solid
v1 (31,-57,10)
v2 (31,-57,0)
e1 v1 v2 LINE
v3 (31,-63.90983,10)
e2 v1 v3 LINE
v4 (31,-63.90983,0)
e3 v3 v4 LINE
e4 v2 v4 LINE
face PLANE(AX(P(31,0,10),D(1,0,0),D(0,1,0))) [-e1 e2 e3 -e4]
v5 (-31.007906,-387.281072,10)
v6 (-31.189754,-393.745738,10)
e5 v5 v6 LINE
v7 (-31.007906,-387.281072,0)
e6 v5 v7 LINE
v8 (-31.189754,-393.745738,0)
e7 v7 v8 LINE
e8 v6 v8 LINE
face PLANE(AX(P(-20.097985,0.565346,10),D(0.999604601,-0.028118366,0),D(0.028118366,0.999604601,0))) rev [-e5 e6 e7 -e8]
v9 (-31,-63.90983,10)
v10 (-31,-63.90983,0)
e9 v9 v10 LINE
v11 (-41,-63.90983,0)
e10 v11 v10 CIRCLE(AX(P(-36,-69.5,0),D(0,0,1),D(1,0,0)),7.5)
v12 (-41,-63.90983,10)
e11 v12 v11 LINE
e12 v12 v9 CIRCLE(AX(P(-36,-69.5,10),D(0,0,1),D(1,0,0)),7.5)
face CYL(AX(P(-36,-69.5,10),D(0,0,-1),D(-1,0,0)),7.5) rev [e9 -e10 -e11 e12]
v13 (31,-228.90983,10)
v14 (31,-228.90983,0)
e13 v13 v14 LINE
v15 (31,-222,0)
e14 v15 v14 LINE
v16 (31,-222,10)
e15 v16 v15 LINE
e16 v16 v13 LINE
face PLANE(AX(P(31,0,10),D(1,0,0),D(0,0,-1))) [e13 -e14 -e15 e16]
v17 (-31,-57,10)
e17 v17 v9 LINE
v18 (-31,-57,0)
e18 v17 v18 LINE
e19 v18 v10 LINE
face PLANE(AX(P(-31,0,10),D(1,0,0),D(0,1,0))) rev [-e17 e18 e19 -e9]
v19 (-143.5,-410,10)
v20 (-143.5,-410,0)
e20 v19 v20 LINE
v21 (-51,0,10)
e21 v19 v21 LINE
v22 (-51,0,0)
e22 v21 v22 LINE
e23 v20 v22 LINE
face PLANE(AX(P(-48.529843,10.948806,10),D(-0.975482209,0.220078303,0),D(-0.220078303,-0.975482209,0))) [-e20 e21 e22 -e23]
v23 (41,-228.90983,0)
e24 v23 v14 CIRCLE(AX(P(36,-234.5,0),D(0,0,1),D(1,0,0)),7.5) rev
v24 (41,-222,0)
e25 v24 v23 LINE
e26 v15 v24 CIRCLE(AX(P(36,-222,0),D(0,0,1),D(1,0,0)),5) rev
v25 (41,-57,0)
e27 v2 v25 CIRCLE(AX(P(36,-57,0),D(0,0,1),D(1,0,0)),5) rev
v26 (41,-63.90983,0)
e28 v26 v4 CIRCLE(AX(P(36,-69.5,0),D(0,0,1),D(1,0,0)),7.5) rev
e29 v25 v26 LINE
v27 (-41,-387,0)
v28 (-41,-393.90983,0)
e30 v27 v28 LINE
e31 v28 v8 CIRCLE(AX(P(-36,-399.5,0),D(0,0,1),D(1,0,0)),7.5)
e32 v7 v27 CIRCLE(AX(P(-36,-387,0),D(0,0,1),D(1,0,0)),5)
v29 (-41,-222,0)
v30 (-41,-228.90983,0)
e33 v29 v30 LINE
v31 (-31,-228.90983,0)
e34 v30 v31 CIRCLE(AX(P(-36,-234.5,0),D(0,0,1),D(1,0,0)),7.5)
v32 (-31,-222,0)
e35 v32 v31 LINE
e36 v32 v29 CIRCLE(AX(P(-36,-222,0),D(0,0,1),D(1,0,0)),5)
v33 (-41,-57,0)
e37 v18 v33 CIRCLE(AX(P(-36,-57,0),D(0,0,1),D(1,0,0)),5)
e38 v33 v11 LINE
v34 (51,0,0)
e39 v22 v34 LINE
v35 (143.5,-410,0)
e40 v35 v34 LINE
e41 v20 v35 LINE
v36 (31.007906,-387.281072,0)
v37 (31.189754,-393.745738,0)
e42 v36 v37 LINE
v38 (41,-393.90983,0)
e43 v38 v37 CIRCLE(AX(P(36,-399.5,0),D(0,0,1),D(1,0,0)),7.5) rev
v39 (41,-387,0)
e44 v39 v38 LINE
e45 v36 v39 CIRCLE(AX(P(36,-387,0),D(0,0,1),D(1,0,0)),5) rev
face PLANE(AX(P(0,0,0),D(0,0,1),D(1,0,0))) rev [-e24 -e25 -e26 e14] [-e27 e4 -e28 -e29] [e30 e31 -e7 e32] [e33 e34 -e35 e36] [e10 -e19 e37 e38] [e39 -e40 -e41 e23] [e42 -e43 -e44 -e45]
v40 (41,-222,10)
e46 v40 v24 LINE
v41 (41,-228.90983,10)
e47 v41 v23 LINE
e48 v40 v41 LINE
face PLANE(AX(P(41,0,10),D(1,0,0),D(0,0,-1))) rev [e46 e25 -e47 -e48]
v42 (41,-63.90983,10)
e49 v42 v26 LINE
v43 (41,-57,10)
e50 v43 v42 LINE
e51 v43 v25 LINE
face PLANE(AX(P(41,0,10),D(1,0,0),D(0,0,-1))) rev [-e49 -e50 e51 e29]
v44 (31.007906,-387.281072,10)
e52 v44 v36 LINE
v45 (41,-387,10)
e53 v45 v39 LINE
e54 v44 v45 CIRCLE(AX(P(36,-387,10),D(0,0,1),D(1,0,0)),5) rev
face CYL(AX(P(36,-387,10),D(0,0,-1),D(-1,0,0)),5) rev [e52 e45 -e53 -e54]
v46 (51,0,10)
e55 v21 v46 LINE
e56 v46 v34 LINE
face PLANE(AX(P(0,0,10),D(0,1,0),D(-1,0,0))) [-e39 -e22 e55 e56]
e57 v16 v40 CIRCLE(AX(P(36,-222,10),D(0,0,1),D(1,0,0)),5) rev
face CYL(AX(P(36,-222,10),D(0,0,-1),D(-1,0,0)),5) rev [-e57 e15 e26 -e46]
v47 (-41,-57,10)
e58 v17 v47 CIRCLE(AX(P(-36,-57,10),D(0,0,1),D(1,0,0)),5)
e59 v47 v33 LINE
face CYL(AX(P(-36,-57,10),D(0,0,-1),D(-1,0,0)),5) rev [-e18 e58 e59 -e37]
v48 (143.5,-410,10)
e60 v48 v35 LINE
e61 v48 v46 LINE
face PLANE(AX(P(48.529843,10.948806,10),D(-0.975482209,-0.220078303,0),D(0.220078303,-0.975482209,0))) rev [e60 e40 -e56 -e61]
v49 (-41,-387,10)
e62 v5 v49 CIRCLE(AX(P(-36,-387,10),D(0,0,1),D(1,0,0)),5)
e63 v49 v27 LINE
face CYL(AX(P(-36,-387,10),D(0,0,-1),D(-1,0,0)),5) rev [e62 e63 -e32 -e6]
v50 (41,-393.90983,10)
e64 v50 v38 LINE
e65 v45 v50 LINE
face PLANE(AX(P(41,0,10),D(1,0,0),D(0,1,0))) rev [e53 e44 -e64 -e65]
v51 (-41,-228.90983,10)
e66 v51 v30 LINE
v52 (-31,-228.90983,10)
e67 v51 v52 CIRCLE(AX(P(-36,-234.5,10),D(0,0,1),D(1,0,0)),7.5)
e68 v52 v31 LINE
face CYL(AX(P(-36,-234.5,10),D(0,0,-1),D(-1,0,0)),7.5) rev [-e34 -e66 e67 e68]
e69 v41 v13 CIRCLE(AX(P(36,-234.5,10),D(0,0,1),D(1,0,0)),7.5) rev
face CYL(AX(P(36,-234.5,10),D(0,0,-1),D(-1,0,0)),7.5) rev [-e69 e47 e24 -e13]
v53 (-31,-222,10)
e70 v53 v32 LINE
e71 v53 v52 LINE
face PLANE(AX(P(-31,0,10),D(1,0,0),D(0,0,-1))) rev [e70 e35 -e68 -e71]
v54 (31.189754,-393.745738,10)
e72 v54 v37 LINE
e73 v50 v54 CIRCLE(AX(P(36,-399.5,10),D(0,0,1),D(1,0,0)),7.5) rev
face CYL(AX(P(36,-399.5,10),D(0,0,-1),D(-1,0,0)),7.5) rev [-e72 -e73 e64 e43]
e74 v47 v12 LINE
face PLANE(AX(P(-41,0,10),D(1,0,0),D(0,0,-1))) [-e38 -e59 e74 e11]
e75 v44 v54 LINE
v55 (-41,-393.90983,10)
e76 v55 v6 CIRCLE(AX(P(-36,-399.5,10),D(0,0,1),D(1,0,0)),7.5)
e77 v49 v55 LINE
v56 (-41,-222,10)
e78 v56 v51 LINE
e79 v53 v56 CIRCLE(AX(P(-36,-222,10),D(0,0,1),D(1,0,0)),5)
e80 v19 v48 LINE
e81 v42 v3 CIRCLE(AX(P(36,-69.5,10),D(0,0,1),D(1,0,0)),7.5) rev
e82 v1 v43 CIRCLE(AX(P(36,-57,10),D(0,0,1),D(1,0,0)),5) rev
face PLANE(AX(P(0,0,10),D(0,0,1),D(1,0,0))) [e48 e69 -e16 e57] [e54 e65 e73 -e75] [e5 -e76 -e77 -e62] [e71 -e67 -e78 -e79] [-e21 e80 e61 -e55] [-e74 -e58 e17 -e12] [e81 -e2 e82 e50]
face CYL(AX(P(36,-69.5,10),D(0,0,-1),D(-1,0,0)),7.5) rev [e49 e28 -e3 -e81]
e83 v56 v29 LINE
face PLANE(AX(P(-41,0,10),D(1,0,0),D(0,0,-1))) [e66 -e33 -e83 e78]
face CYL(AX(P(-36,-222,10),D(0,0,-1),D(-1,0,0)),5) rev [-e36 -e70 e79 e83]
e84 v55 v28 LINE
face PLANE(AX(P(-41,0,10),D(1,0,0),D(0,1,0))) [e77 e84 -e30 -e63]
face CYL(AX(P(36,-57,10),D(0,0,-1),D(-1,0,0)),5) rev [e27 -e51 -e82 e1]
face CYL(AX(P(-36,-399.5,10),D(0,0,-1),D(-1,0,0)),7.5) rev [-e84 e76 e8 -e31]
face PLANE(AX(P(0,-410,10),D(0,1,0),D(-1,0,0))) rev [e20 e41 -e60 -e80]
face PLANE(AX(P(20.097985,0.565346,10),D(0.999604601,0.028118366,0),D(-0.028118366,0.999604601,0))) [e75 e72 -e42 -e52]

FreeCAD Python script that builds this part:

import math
import FreeCAD as App
import Part
import Sketcher
from FreeCAD import Vector
Q = App.Units.Quantity


def add_polygon(sketch, points):
    """Adds a closed chain of lines whose ends are joined by coincident constraints."""
    first, n = sketch.GeometryCount, len(points)
    for a, b in zip(points, points[1:] + points[:1]):
        sketch.addGeometry(Part.LineSegment(App.Vector(*a, 0), App.Vector(*b, 0)), False)
    for i in range(n):
        sketch.addConstraint(Sketcher.Constraint("Coincident", first + i, 2, first + (i + 1) % n, 1))

doc = App.newDocument("Part")
body = doc.addObject("PartDesign::Body", "Body")

sketch1 = body.newObject("Sketcher::SketchObject", "Sketch")
sketch1.AttachmentSupport = (doc.getObject("XY_Plane"), [""])
sketch1.MapMode = "FlatFace"
add_polygon(sketch1, [(-51, 0), (-143.5, -410), (143.5, -410), (51, 0)])
sketch1.addGeometry(Part.LineSegment(Vector(-31.007906, -387.281072, 0), Vector(-31.189754, -393.745738, 0)), False)
sketch1.addGeometry(Part.ArcOfCircle(Part.Circle(Vector(-36, -399.5, 0), Vector(0, 0, 1), 7.5), math.radians(-90), math.radians(50.106237)), False)
sketch1.addGeometry(Part.ArcOfCircle(Part.Circle(Vector(-36, -399.5, 0), Vector(0, 0, 1), 7.5), math.radians(131.810315), math.radians(270)), False)
sketch1.addGeometry(Part.LineSegment(Vector(-41, -393.90983, 0), Vector(-41, -387, 0)), False)
sketch1.addGeometry(Part.ArcOfCircle(Part.Circle(Vector(-36, -387, 0), Vector(0, 0, 1), 5), math.radians(-3.222552), math.radians(180)), False)
sketch1.addGeometry(Part.ArcOfCircle(Part.Circle(Vector(36, -387, 0), Vector(0, 0, 1), 5), math.radians(0), math.radians(183.222552)), False)
sketch1.addGeometry(Part.LineSegment(Vector(41, -387, 0), Vector(41, -393.90983, 0)), False)
sketch1.addGeometry(Part.ArcOfCircle(Part.Circle(Vector(36, -399.5, 0), Vector(0, 0, 1), 7.5), math.radians(129.893763), math.radians(408.189685)), False)
sketch1.addGeometry(Part.LineSegment(Vector(31.189754, -393.745738, 0), Vector(31.007906, -387.281072, 0)), False)
sketch1.addGeometry(Part.ArcOfCircle(Part.Circle(Vector(-36, -234.5, 0), Vector(0, 0, 1), 7.5), math.radians(131.810315), math.radians(408.189685)), False)
sketch1.addGeometry(Part.LineSegment(Vector(-41, -228.90983, 0), Vector(-41, -222, 0)), False)
sketch1.addGeometry(Part.ArcOfCircle(Part.Circle(Vector(-36, -222, 0), Vector(0, 0, 1), 5), math.radians(0), math.radians(180)), False)
sketch1.addGeometry(Part.LineSegment(Vector(-31, -222, 0), Vector(-31, -228.90983, 0)), False)
sketch1.addGeometry(Part.ArcOfCircle(Part.Circle(Vector(-36, -69.5, 0), Vector(0, 0, 1), 7.5), math.radians(131.810315), math.radians(408.189685)), False)
sketch1.addGeometry(Part.LineSegment(Vector(-41, -63.90983, 0), Vector(-41, -57, 0)), False)
sketch1.addGeometry(Part.ArcOfCircle(Part.Circle(Vector(-36, -57, 0), Vector(0, 0, 1), 5), math.radians(0), math.radians(180)), False)
sketch1.addGeometry(Part.LineSegment(Vector(-31, -57, 0), Vector(-31, -63.90983, 0)), False)
sketch1.addGeometry(Part.ArcOfCircle(Part.Circle(Vector(36, -234.5, 0), Vector(0, 0, 1), 7.5), math.radians(131.810315), math.radians(408.189685)), False)
sketch1.addGeometry(Part.LineSegment(Vector(31, -228.90983, 0), Vector(31, -222, 0)), False)
sketch1.addGeometry(Part.ArcOfCircle(Part.Circle(Vector(36, -222, 0), Vector(0, 0, 1), 5), math.radians(0), math.radians(180)), False)
sketch1.addGeometry(Part.LineSegment(Vector(41, -222, 0), Vector(41, -228.90983, 0)), False)
sketch1.addGeometry(Part.ArcOfCircle(Part.Circle(Vector(36, -57, 0), Vector(0, 0, 1), 5), math.radians(0), math.radians(180)), False)
sketch1.addGeometry(Part.LineSegment(Vector(41, -57, 0), Vector(41, -63.90983, 0)), False)
sketch1.addGeometry(Part.ArcOfCircle(Part.Circle(Vector(36, -69.5, 0), Vector(0, 0, 1), 7.5), math.radians(131.810315), math.radians(408.189685)), False)
sketch1.addGeometry(Part.LineSegment(Vector(31, -63.90983, 0), Vector(31, -57, 0)), False)
sketch1.addConstraint([
    Sketcher.Constraint("Coincident", 4, 2, 5, 2),
    Sketcher.Constraint("Tangent", 5, 1, 6, 2),
    Sketcher.Constraint("Coincident", 6, 1, 7, 1),
    Sketcher.Constraint("Tangent", 7, 2, 8, 2),
    Sketcher.Constraint("Coincident", 8, 1, 4, 1),
    Sketcher.Constraint("Tangent", 9, 1, 10, 1),
    Sketcher.Constraint("Coincident", 10, 2, 11, 2),
    Sketcher.Constraint("Coincident", 11, 1, 12, 1),
    Sketcher.Constraint("Coincident", 12, 2, 9, 2),
    Sketcher.Constraint("Coincident", 13, 1, 14, 1),
    Sketcher.Constraint("Tangent", 14, 2, 15, 2),
    Sketcher.Constraint("Tangent", 15, 1, 16, 1),
    Sketcher.Constraint("Coincident", 16, 2, 13, 2),
    Sketcher.Constraint("Coincident", 17, 1, 18, 1),
    Sketcher.Constraint("Tangent", 18, 2, 19, 2),
    Sketcher.Constraint("Tangent", 19, 1, 20, 1),
    Sketcher.Constraint("Coincident", 20, 2, 17, 2),
    Sketcher.Constraint("Coincident", 21, 1, 22, 1),
    Sketcher.Constraint("Tangent", 22, 2, 23, 2),
    Sketcher.Constraint("Tangent", 23, 1, 24, 1),
    Sketcher.Constraint("Coincident", 24, 2, 21, 2),
    Sketcher.Constraint("Tangent", 25, 1, 26, 1),
    Sketcher.Constraint("Coincident", 26, 2, 27, 2),
    Sketcher.Constraint("Coincident", 27, 1, 28, 1),
    Sketcher.Constraint("Tangent", 28, 2, 25, 2),
    Sketcher.Constraint("Horizontal", 1),
    Sketcher.Constraint("Horizontal", 3),
    Sketcher.Constraint("Vertical", 7),
    Sketcher.Constraint("Vertical", 10),
    Sketcher.Constraint("Vertical", 14),
    Sketcher.Constraint("Vertical", 16),
    Sketcher.Constraint("Vertical", 18),
    Sketcher.Constraint("Vertical", 20),
    Sketcher.Constraint("Vertical", 22),
    Sketcher.Constraint("Vertical", 24),
    Sketcher.Constraint("Vertical", 26),
    Sketcher.Constraint("Vertical", 28),
    Sketcher.Constraint("Equal", 5, 6),
    Sketcher.Constraint("Equal", 8, 9),
    Sketcher.Constraint("Equal", 6, 11),
    Sketcher.Constraint("Equal", 11, 13),
    Sketcher.Constraint("Equal", 9, 15),
    Sketcher.Constraint("Equal", 13, 17),
    Sketcher.Constraint("Equal", 15, 19),
    Sketcher.Constraint("Equal", 17, 21),
    Sketcher.Constraint("Equal", 19, 23),
    Sketcher.Constraint("Equal", 23, 25),
    Sketcher.Constraint("Equal", 21, 27),
    Sketcher.Constraint("Symmetric", 2, 2, 3, 2, -1, 1),
    Sketcher.Constraint("Symmetric", 8, 3, 9, 3, -2),
    Sketcher.Constraint("Symmetric", 5, 3, 11, 3, -2),
    Sketcher.Constraint("Symmetric", 13, 3, 21, 3, -2),
    Sketcher.Constraint("Symmetric", 15, 3, 23, 3, -2),
    Sketcher.Constraint("Symmetric", 19, 3, 25, 3, -2),
    Sketcher.Constraint("Symmetric", 17, 3, 27, 3, -2),
    Sketcher.Constraint("Horizontal", 4, 2, 11, 1),
    Sketcher.Constraint("Horizontal", 8, 1, 12, 2),
    Sketcher.Constraint("Horizontal", 13, 1, 16, 2),
    Sketcher.Constraint("Horizontal", 17, 1, 20, 2),
    Sketcher.Constraint("Vertical", 6, 3, 8, 3),
    Sketcher.Constraint("Vertical", 8, 3, 13, 3),
    Sketcher.Constraint("Vertical", 15, 3, 17, 3),
    Sketcher.Constraint("Vertical", 19, 3, 5, 1),
    Sketcher.Constraint("Equal", 10, 14),
    Sketcher.Constraint("Equal", 16, 18),
    Sketcher.Constraint("Equal", 0, 2),
    Sketcher.Constraint("Radius", 8, Q("5 mm")),
    Sketcher.Constraint("Radius", 5, Q("7.5 mm")),
    Sketcher.Constraint("DistanceX", 1, 1, 1, 2, Q("287 mm")),
    Sketcher.Constraint("DistanceX", 3, 2, 3, 1, Q("102 mm")),
    Sketcher.Constraint("DistanceX", 5, 3, -1, 1, Q("36 mm")),
    Sketcher.Constraint("DistanceY", 8, 3, -1, 1, Q("387 mm")),
    Sketcher.Constraint("DistanceY", 15, 3, -1, 1, Q("222 mm")),
    Sketcher.Constraint("DistanceY", 19, 3, -1, 1, Q("57 mm")),
    Sketcher.Constraint("DistanceY", 0, 2, -1, 1, Q("410 mm")),
    Sketcher.Constraint("DistanceY", 5, 1, -1, 1, Q("407 mm")),
    Sketcher.Constraint("DistanceX", 4, 2, 11, 1, Q("62.379508 mm")),
    Sketcher.Constraint("Distance", 4, Q("6.467222 mm")),
])
pad1 = body.newObject("PartDesign::Pad", "Pad")
pad1.Profile = sketch1
pad1.Length = 10

doc.recompute()
